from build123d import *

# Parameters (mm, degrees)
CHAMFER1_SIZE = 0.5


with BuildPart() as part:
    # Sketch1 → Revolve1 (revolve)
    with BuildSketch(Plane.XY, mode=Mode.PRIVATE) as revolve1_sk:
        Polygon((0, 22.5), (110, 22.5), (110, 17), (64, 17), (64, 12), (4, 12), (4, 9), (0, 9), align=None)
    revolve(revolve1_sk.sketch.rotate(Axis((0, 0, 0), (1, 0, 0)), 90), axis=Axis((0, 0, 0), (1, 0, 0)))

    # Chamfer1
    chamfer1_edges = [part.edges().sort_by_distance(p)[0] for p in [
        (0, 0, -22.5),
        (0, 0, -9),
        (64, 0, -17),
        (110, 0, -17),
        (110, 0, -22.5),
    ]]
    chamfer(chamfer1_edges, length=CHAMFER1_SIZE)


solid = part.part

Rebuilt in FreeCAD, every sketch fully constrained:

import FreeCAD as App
import Part
import Sketcher
from FreeCAD import Vector
Q = App.Units.Quantity


def edges_at(feature, points):
    """Names of the edges that pass closest to the given points."""
    edges = feature.Shape.Edges
    near = lambda p: min(range(len(edges)), key=lambda i: edges[i].distToShape(Part.Vertex(*p))[0])
    return sorted({f"Edge{near(p) + 1}" for p in points})


def add_polygon(sketch, points):
    """Adds a closed chain of lines whose ends are joined by coincident constraints."""
    first, n = sketch.GeometryCount, len(points)
    for a, b in zip(points, points[1:] + points[:1]):
        sketch.addGeometry(Part.LineSegment(App.Vector(*a, 0), App.Vector(*b, 0)), False)
    for i in range(n):
        sketch.addConstraint(Sketcher.Constraint("Coincident", first + i, 2, first + (i + 1) % n, 1))

doc = App.newDocument("Part")
params = doc.addObject("Spreadsheet::Sheet", "Params")
for row, (alias, value) in enumerate([
    ("sketch1_width", "110 mm"),
    ("sketch1_width2", "4 mm"),
    ("sketch1_width3", "60 mm"),
    ("sketch1_height", "3 mm"),
    ("sketch1_height2", "5 mm"),
    ("revolution_angle", "360 deg"),
    ("chamfer_size", "0.5 mm"),
], start=1):
    params.set(f"A{row}", alias)
    params.set(f"B{row}", "=" + value)
    params.setAlias(f"B{row}", alias)

body = doc.addObject("PartDesign::Body", "Body")

# Sketch on XY plane
sketch1 = body.newObject("Sketcher::SketchObject", "Sketch")
sketch1.AttachmentSupport = (doc.getObject("XY_Plane"), [""])
sketch1.MapMode = "FlatFace"
add_polygon(sketch1, [(110, 22.5), (0, 22.5), (0, 9), (4, 9), (4, 12), (64, 12), (64, 17), (110, 17)])  # lines 0-7
sketch1.addConstraint([
    Sketcher.Constraint("Horizontal", 0),
    Sketcher.Constraint("Vertical", 1),
    Sketcher.Constraint("Horizontal", 2),
    Sketcher.Constraint("Vertical", 3),
    Sketcher.Constraint("Horizontal", 4),
    Sketcher.Constraint("Vertical", 5),
    Sketcher.Constraint("Horizontal", 6),
    Sketcher.Constraint("Vertical", 7),
    Sketcher.Constraint("PointOnObject", 0, 2, -2),
    Sketcher.Constraint("DistanceX", 0, 2, 0, 1, Q("110 mm")),
    Sketcher.Constraint("DistanceX", 2, 1, 2, 2, Q("4 mm")),
    Sketcher.Constraint("DistanceX", 4, 1, 4, 2, Q("60 mm")),
    Sketcher.Constraint("DistanceY", 3, 1, 3, 2, Q("3 mm")),
    Sketcher.Constraint("DistanceY", 5, 1, 5, 2, Q("5 mm")),
    Sketcher.Constraint("DistanceY", 1, 2, 1, 1, Q("13.5 mm")),
    Sketcher.Constraint("DistanceY", -1, 1, 1, 2, Q("9 mm")),
])
sketch1.setExpression("Constraints[17]", "Params.sketch1_width")
sketch1.setExpression("Constraints[18]", "Params.sketch1_width2")
sketch1.setExpression("Constraints[19]", "Params.sketch1_width3")
sketch1.setExpression("Constraints[20]", "Params.sketch1_height")
sketch1.setExpression("Constraints[21]", "Params.sketch1_height2")
revolution = body.newObject("PartDesign::Revolution", "Revolution")
revolution.Profile = sketch1
revolution.ReferenceAxis = (sketch1, ["H_Axis"])
revolution.setExpression("Angle", "Params.revolution_angle")
doc.recompute()

chamfer = body.newObject("PartDesign::Chamfer", "Chamfer")
chamfer.Base = (revolution, edges_at(revolution, [
    (0, 0, -22.5),
    (0, 0, -9),
    (64, 0, -17),
    (110, 0, -17),
    (110, 0, -22.5),
]))
chamfer.setExpression("Size", "Params.chamfer_size")

doc.recompute()
